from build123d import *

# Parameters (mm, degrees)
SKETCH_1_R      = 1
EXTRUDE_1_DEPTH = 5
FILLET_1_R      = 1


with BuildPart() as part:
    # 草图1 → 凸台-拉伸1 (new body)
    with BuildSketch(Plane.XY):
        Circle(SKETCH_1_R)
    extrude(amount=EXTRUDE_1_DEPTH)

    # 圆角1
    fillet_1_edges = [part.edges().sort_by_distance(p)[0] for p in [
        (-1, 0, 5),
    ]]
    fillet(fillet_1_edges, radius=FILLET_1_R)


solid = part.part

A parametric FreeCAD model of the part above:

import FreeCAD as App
import Part
import Sketcher

V = App.Vector
Q = App.Units.Quantity


def edges_at(feature, points):
    """Names of the edges that pass closest to the given points."""
    edges = feature.Shape.Edges
    near = lambda p: min(range(len(edges)), key=lambda i: edges[i].distToShape(Part.Vertex(*p))[0])
    return sorted({f"Edge{near(p) + 1}" for p in points})

doc = App.newDocument("Part")
body = doc.addObject("PartDesign::Body", "Body")

# Sketch on XY plane
sketch1 = doc.addObject("Sketcher::SketchObject", "Sketch")
body.addObject(sketch1)
sketch1.AttachmentSupport = (doc.XY_Plane, [""])
sketch1.MapMode = "FlatFace"
sketch1.addGeometry(Part.Circle(V(0, 0, 0), V(0, 0, 1), 1), False)
sketch1.addConstraint([
    Sketcher.Constraint("Coincident", 0, 3, -1, 1),
    Sketcher.Constraint("Diameter", 0, Q("2 mm")),
])
pad1 = doc.addObject("PartDesign::Pad", "Pad")
body.addObject(pad1)
pad1.Profile = sketch1
pad1.Length = 5
doc.recompute()

fillet = doc.addObject("PartDesign::Fillet", "Fillet")
body.addObject(fillet)
fillet.Base = (pad1, edges_at(pad1, [(-1, 0, 5)]))
fillet.Radius = 1

doc.recompute()
